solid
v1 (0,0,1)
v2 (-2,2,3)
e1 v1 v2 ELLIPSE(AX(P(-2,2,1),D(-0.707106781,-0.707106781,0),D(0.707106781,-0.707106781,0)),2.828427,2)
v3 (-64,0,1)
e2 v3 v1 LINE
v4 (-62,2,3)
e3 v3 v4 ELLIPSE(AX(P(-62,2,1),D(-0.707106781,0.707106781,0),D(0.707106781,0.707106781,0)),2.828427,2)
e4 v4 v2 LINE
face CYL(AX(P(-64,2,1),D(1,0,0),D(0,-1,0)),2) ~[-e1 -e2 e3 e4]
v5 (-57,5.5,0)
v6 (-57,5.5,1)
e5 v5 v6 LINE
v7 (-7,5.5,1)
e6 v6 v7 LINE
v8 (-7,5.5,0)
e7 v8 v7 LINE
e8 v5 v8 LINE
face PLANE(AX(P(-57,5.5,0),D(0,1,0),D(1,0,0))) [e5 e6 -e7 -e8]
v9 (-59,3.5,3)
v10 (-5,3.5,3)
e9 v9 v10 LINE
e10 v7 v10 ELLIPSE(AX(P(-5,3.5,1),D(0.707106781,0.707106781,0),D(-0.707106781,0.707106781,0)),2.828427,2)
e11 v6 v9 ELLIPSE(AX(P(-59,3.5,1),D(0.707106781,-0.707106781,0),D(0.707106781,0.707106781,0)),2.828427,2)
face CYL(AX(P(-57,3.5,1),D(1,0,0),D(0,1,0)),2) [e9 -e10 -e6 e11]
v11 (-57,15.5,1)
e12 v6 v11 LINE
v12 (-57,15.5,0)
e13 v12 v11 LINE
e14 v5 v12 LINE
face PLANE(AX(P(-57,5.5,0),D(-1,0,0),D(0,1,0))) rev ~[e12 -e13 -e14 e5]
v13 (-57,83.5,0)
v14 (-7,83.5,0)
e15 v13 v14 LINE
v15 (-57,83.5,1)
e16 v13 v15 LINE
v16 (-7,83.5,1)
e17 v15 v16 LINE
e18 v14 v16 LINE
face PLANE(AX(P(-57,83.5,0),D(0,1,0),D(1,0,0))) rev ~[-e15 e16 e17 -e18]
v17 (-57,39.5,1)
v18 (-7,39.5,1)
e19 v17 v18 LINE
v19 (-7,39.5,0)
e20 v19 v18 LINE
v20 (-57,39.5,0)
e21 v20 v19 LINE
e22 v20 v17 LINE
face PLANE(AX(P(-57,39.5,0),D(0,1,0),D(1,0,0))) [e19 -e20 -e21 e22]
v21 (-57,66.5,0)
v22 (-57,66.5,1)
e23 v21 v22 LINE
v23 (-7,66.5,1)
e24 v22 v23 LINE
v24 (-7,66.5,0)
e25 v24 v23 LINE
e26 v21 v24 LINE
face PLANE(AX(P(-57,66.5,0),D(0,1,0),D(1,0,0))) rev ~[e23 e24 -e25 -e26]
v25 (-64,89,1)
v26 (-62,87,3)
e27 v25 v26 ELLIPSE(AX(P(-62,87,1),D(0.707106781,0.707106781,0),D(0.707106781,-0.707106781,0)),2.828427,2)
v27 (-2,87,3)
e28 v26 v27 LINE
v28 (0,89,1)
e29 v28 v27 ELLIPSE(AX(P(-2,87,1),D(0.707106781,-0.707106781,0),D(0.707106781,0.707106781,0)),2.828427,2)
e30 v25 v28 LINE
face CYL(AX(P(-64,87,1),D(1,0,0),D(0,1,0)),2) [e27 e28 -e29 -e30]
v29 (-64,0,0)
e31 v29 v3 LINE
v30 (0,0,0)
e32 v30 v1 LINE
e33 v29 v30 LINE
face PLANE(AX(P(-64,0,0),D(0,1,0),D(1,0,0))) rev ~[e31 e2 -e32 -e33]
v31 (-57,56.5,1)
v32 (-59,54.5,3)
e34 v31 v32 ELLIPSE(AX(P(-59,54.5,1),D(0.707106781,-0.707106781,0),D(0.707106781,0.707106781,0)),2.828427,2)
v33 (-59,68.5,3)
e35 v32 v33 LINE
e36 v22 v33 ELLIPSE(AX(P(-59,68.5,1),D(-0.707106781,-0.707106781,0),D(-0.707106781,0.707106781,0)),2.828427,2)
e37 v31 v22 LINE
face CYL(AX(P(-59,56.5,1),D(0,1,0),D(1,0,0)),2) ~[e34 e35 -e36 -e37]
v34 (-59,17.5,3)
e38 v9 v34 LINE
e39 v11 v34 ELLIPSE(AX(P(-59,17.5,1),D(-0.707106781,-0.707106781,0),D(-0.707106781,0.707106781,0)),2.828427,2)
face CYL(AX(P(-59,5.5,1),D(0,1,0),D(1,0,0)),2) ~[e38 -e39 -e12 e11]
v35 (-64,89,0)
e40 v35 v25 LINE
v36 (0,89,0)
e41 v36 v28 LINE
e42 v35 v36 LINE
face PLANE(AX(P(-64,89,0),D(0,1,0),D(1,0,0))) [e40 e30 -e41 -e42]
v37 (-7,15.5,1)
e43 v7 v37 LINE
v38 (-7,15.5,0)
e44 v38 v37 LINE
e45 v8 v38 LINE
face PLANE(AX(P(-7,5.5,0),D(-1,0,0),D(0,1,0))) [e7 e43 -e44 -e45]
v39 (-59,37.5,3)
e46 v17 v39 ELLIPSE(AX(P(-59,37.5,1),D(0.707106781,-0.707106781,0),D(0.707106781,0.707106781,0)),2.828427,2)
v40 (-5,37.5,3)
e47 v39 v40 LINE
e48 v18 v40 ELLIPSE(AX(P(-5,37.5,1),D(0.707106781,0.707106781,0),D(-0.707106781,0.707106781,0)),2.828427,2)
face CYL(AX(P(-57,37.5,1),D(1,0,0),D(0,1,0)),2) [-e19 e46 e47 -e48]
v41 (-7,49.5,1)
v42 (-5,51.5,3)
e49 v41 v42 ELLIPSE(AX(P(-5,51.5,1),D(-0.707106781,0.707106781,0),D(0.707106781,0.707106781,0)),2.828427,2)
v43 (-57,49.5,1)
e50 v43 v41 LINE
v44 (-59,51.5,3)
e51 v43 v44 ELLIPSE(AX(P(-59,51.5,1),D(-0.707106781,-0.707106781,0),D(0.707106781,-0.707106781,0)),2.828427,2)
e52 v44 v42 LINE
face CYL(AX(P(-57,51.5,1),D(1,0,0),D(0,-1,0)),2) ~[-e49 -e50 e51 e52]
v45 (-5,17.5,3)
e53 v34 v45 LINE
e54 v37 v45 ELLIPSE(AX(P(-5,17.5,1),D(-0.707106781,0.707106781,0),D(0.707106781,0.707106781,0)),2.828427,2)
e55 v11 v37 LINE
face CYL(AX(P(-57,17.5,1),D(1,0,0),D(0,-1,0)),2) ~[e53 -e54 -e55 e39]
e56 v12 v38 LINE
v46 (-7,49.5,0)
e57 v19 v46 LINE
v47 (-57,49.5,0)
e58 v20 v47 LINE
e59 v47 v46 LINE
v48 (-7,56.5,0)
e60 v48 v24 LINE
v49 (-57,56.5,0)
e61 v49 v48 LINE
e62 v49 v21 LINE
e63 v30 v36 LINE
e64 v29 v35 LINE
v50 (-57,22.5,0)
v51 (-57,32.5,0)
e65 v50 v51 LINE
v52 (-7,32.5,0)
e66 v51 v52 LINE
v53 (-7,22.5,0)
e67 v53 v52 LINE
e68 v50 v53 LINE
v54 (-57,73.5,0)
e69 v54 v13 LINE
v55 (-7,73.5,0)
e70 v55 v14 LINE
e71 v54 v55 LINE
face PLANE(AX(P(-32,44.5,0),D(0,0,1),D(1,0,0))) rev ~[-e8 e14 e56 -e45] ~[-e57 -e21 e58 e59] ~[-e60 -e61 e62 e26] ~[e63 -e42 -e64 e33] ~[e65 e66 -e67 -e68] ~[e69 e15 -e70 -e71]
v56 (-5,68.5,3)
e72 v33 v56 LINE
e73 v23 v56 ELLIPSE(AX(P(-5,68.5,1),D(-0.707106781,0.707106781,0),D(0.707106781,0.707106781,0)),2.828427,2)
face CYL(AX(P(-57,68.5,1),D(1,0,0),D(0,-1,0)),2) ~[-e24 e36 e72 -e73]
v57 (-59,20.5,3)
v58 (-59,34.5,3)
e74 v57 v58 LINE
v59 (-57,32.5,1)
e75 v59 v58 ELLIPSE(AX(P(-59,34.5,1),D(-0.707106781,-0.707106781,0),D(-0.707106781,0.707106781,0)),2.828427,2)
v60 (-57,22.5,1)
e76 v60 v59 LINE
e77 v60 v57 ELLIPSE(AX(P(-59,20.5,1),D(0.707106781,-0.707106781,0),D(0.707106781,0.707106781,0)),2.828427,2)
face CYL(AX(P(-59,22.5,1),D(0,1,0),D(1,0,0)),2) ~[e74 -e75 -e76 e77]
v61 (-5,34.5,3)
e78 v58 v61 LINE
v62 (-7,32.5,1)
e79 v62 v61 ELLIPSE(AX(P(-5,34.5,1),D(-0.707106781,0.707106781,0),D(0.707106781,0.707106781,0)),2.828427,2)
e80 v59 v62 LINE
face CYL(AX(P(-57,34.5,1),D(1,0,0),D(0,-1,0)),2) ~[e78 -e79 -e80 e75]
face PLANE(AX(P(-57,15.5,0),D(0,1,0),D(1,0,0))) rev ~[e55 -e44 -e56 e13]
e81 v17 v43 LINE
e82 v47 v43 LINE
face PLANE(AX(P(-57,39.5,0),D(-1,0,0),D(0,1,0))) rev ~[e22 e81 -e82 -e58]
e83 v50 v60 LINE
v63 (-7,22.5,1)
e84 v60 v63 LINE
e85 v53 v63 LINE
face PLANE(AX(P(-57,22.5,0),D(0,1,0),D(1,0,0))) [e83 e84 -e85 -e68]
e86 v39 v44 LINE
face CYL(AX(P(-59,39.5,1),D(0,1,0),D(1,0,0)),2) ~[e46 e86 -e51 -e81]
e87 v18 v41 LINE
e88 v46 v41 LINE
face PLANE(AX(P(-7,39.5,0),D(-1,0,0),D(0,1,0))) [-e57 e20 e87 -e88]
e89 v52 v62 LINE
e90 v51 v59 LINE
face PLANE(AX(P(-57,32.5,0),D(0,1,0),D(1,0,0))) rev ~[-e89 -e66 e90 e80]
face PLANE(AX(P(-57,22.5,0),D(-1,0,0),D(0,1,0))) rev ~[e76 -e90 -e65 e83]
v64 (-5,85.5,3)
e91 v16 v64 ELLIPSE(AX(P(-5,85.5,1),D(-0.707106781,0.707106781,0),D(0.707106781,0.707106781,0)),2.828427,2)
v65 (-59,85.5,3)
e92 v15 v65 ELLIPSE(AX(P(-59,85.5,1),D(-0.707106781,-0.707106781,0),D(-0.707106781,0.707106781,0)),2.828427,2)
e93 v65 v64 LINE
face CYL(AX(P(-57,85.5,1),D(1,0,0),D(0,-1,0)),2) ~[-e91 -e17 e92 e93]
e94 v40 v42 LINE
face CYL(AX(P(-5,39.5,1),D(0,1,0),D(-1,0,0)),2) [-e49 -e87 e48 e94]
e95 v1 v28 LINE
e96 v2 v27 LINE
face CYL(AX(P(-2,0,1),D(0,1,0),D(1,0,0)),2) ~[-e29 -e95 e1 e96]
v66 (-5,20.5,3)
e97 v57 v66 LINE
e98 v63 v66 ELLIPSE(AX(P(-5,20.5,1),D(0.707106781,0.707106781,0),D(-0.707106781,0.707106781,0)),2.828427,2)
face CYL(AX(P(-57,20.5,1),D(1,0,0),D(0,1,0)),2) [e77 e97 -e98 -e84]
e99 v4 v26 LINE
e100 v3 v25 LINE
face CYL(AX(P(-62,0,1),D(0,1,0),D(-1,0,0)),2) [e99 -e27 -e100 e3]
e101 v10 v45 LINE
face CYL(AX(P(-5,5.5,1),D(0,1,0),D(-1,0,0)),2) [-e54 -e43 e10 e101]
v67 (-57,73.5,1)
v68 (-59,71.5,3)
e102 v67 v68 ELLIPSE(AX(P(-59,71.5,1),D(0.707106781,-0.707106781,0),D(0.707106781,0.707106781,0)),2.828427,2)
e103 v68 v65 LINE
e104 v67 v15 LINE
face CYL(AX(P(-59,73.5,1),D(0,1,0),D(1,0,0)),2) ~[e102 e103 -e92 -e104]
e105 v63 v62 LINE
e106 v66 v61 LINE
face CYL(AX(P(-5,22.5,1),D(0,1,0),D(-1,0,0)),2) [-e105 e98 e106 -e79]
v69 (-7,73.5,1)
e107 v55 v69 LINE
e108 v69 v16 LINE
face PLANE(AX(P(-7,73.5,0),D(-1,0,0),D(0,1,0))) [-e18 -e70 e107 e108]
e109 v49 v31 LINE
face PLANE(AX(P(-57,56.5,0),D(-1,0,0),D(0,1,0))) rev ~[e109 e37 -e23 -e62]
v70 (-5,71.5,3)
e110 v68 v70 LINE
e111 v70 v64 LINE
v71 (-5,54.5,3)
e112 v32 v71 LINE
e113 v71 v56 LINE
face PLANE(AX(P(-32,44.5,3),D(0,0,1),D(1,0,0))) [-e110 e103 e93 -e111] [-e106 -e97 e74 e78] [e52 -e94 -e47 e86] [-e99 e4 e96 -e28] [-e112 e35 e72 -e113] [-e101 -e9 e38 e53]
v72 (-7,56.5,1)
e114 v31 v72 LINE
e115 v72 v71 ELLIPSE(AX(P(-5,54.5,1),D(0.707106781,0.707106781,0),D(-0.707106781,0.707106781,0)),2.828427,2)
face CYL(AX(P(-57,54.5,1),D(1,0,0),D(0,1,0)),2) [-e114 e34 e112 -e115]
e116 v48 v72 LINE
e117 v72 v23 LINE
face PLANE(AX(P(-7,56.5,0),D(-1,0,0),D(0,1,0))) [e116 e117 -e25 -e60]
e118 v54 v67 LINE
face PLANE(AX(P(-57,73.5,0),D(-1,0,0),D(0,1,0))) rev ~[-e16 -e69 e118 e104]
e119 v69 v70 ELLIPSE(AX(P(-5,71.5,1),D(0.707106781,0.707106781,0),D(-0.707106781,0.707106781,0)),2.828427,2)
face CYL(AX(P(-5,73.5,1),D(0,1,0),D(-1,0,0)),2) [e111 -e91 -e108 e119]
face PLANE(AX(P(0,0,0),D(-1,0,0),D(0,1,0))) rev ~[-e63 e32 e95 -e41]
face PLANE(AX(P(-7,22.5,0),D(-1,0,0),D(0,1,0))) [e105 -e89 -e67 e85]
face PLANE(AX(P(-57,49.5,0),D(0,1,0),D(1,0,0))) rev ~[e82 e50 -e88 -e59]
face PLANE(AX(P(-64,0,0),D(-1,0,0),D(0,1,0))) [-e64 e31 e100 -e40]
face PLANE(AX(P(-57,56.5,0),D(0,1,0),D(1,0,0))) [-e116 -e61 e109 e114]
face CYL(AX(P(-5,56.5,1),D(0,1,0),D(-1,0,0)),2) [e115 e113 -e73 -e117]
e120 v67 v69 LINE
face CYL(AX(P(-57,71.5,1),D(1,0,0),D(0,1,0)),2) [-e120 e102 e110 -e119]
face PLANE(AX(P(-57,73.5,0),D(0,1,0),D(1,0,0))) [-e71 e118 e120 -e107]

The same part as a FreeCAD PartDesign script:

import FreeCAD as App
import Part
import Sketcher


def edges_at(feature, points):
    """Names of the edges that pass closest to the given points."""
    edges = feature.Shape.Edges
    near = lambda p: min(range(len(edges)), key=lambda i: edges[i].distToShape(Part.Vertex(*p))[0])
    return sorted({f"Edge{near(p) + 1}" for p in points})

doc = App.newDocument("Part")
body = doc.addObject("PartDesign::Body", "Body")

sketch1 = doc.addObject("Sketcher::SketchObject", "Sketch")
body.addObject(sketch1)
sketch1.AttachmentSupport = (doc.XY_Plane, [""])
sketch1.MapMode = "FlatFace"
sketch1.addGeometry(Part.LineSegment(App.Vector(-64, 89, 0), App.Vector(-64, 0, 0)), False)
sketch1.addGeometry(Part.LineSegment(App.Vector(-64, 0, 0), App.Vector(0, 0, 0)), False)
sketch1.addGeometry(Part.LineSegment(App.Vector(0, 0, 0), App.Vector(0, 89, 0)), False)
sketch1.addGeometry(Part.LineSegment(App.Vector(0, 89, 0), App.Vector(-64, 89, 0)), False)
sketch1.addGeometry(Part.LineSegment(App.Vector(-7, 6, 0), App.Vector(-57, 6, 0)), False)
sketch1.addGeometry(Part.LineSegment(App.Vector(-57, 6, 0), App.Vector(-57, 16, 0)), False)
sketch1.addGeometry(Part.LineSegment(App.Vector(-57, 16, 0), App.Vector(-7, 16, 0)), False)
sketch1.addGeometry(Part.LineSegment(App.Vector(-7, 16, 0), App.Vector(-7, 6, 0)), False)
sketch1.addGeometry(Part.LineSegment(App.Vector(-7, 22, 0), App.Vector(-57, 22, 0)), False)
sketch1.addGeometry(Part.LineSegment(App.Vector(-57, 22, 0), App.Vector(-57, 32, 0)), False)
sketch1.addGeometry(Part.LineSegment(App.Vector(-57, 32, 0), App.Vector(-7, 32, 0)), False)
sketch1.addGeometry(Part.LineSegment(App.Vector(-7, 32, 0), App.Vector(-7, 22, 0)), False)
sketch1.addGeometry(Part.LineSegment(App.Vector(-7, 40, 0), App.Vector(-57, 40, 0)), False)
sketch1.addGeometry(Part.LineSegment(App.Vector(-57, 40, 0), App.Vector(-57, 50, 0)), False)
sketch1.addGeometry(Part.LineSegment(App.Vector(-57, 50, 0), App.Vector(-7, 50, 0)), False)
sketch1.addGeometry(Part.LineSegment(App.Vector(-7, 50, 0), App.Vector(-7, 40, 0)), False)
sketch1.addGeometry(Part.LineSegment(App.Vector(-7, 56, 0), App.Vector(-57, 56, 0)), False)
sketch1.addGeometry(Part.LineSegment(App.Vector(-57, 56, 0), App.Vector(-57, 66, 0)), False)
sketch1.addGeometry(Part.LineSegment(App.Vector(-57, 66, 0), App.Vector(-7, 66, 0)), False)
sketch1.addGeometry(Part.LineSegment(App.Vector(-7, 66, 0), App.Vector(-7, 56, 0)), False)
sketch1.addGeometry(Part.LineSegment(App.Vector(-7, 74, 0), App.Vector(-57, 74, 0)), False)
sketch1.addGeometry(Part.LineSegment(App.Vector(-57, 74, 0), App.Vector(-57, 84, 0)), False)
sketch1.addGeometry(Part.LineSegment(App.Vector(-57, 84, 0), App.Vector(-7, 84, 0)), False)
sketch1.addGeometry(Part.LineSegment(App.Vector(-7, 84, 0), App.Vector(-7, 74, 0)), False)
sketch1.addConstraint(Sketcher.Constraint("Coincident", 0, 2, 1, 1))
sketch1.addConstraint(Sketcher.Constraint("Coincident", 1, 2, 2, 1))
sketch1.addConstraint(Sketcher.Constraint("Coincident", 2, 2, 3, 1))
sketch1.addConstraint(Sketcher.Constraint("Coincident", 3, 2, 0, 1))
sketch1.addConstraint(Sketcher.Constraint("Coincident", 4, 2, 5, 1))
sketch1.addConstraint(Sketcher.Constraint("Coincident", 5, 2, 6, 1))
sketch1.addConstraint(Sketcher.Constraint("Coincident", 6, 2, 7, 1))
sketch1.addConstraint(Sketcher.Constraint("Coincident", 7, 2, 4, 1))
sketch1.addConstraint(Sketcher.Constraint("Coincident", 8, 2, 9, 1))
sketch1.addConstraint(Sketcher.Constraint("Coincident", 9, 2, 10, 1))
sketch1.addConstraint(Sketcher.Constraint("Coincident", 10, 2, 11, 1))
sketch1.addConstraint(Sketcher.Constraint("Coincident", 11, 2, 8, 1))
sketch1.addConstraint(Sketcher.Constraint("Coincident", 12, 2, 13, 1))
sketch1.addConstraint(Sketcher.Constraint("Coincident", 13, 2, 14, 1))
sketch1.addConstraint(Sketcher.Constraint("Coincident", 14, 2, 15, 1))
sketch1.addConstraint(Sketcher.Constraint("Coincident", 15, 2, 12, 1))
sketch1.addConstraint(Sketcher.Constraint("Coincident", 16, 2, 17, 1))
sketch1.addConstraint(Sketcher.Constraint("Coincident", 17, 2, 18, 1))
sketch1.addConstraint(Sketcher.Constraint("Coincident", 18, 2, 19, 1))
sketch1.addConstraint(Sketcher.Constraint("Coincident", 19, 2, 16, 1))
sketch1.addConstraint(Sketcher.Constraint("Coincident", 20, 2, 21, 1))
sketch1.addConstraint(Sketcher.Constraint("Coincident", 21, 2, 22, 1))
sketch1.addConstraint(Sketcher.Constraint("Coincident", 22, 2, 23, 1))
sketch1.addConstraint(Sketcher.Constraint("Coincident", 23, 2, 20, 1))
sketch1.addConstraint(Sketcher.Constraint("Vertical", 0))
sketch1.addConstraint(Sketcher.Constraint("Horizontal", 1))
sketch1.addConstraint(Sketcher.Constraint("Vertical", 2))
sketch1.addConstraint(Sketcher.Constraint("Horizontal", 3))
sketch1.addConstraint(Sketcher.Constraint("Horizontal", 4))
sketch1.addConstraint(Sketcher.Constraint("Vertical", 5))
sketch1.addConstraint(Sketcher.Constraint("Horizontal", 6))
sketch1.addConstraint(Sketcher.Constraint("Vertical", 7))
sketch1.addConstraint(Sketcher.Constraint("Horizontal", 8))
sketch1.addConstraint(Sketcher.Constraint("Vertical", 9))
sketch1.addConstraint(Sketcher.Constraint("Horizontal", 10))
sketch1.addConstraint(Sketcher.Constraint("Vertical", 11))
sketch1.addConstraint(Sketcher.Constraint("Horizontal", 12))
sketch1.addConstraint(Sketcher.Constraint("Vertical", 13))
sketch1.addConstraint(Sketcher.Constraint("Horizontal", 14))
sketch1.addConstraint(Sketcher.Constraint("Vertical", 15))
sketch1.addConstraint(Sketcher.Constraint("Horizontal", 16))
sketch1.addConstraint(Sketcher.Constraint("Vertical", 17))
sketch1.addConstraint(Sketcher.Constraint("Horizontal", 18))
sketch1.addConstraint(Sketcher.Constraint("Vertical", 19))
sketch1.addConstraint(Sketcher.Constraint("Horizontal", 20))
sketch1.addConstraint(Sketcher.Constraint("Vertical", 21))
sketch1.addConstraint(Sketcher.Constraint("Horizontal", 22))
sketch1.addConstraint(Sketcher.Constraint("Vertical", 23))
sketch1.addConstraint(Sketcher.Constraint("Coincident", 1, 2, -1, 1))
sketch1.addConstraint(Sketcher.Constraint("Vertical", 5, 2, 8, 2))
sketch1.addConstraint(Sketcher.Constraint("Vertical", 7, 2, 10, 2))
sketch1.addConstraint(Sketcher.Constraint("Vertical", 9, 2, 12, 2))
sketch1.addConstraint(Sketcher.Constraint("Vertical", 11, 2, 14, 2))
sketch1.addConstraint(Sketcher.Constraint("Vertical", 13, 2, 16, 2))
sketch1.addConstraint(Sketcher.Constraint("Vertical", 15, 2, 18, 2))
sketch1.addConstraint(Sketcher.Constraint("Vertical", 17, 2, 20, 2))
sketch1.addConstraint(Sketcher.Constraint("Vertical", 19, 2, 22, 2))
sketch1.addConstraint(Sketcher.Constraint("Equal", 7, 9))
sketch1.addConstraint(Sketcher.Constraint("Equal", 11, 13))
sketch1.addConstraint(Sketcher.Constraint("Equal", 15, 17))
sketch1.addConstraint(Sketcher.Constraint("Equal", 19, 21))
sketch1.addConstraint(Sketcher.Constraint("DistanceX", 1, 1, 1, 2, 64.0))
sketch1.addConstraint(Sketcher.Constraint("DistanceX", 4, 2, 4, 1, 50.0))
sketch1.addConstraint(Sketcher.Constraint("DistanceY", 0, 2, 0, 1, 89.0))
sketch1.addConstraint(Sketcher.Constraint("DistanceY", 5, 1, 5, 2, 10.0))
sketch1.addConstraint(Sketcher.Constraint("DistanceX", 4, 2, -1, 1, 57.0))
sketch1.addConstraint(Sketcher.Constraint("DistanceY", 5, 2, 8, 2, 7.0))
sketch1.addConstraint(Sketcher.Constraint("DistanceY", 9, 2, 12, 2, 7.0))
sketch1.addConstraint(Sketcher.Constraint("DistanceY", 13, 2, 16, 2, 7.0))
sketch1.addConstraint(Sketcher.Constraint("DistanceY", 17, 2, 20, 2, 7.0))
sketch1.addConstraint(Sketcher.Constraint("DistanceY", -1, 1, 4, 2, 5.5))
pad1 = doc.addObject("PartDesign::Pad", "Pad")
body.addObject(pad1)
pad1.Profile = sketch1
pad1.Length = 3
doc.recompute()

fillet = doc.addObject("PartDesign::Fillet", "Fillet")
body.addObject(fillet)
fillet.Base = (pad1, edges_at(pad1, [
    (-57, 10.5, 3),
    (-32, 15.5, 3),
    (-7, 10.5, 3),
    (-32, 5.5, 3),
    (-57, 27.5, 3),
    (-32, 32.5, 3),
    (-7, 27.5, 3),
    (-32, 22.5, 3),
    (-32, 49.5, 3),
    (-7, 44.5, 3),
    (-32, 39.5, 3),
    (-57, 44.5, 3),
    (-7, 61.5, 3),
    (-32, 56.5, 3),
    (-57, 61.5, 3),
    (-32, 66.5, 3),
    (-7, 78.5, 3),
    (-32, 73.5, 3),
    (-57, 78.5, 3),
    (-32, 83.5, 3),
    (-32, 0, 3),
    (0, 44.5, 3),
    (-32, 89, 3),
    (-64, 44.5, 3),
]))
fillet.Radius = 2

doc.recompute()
